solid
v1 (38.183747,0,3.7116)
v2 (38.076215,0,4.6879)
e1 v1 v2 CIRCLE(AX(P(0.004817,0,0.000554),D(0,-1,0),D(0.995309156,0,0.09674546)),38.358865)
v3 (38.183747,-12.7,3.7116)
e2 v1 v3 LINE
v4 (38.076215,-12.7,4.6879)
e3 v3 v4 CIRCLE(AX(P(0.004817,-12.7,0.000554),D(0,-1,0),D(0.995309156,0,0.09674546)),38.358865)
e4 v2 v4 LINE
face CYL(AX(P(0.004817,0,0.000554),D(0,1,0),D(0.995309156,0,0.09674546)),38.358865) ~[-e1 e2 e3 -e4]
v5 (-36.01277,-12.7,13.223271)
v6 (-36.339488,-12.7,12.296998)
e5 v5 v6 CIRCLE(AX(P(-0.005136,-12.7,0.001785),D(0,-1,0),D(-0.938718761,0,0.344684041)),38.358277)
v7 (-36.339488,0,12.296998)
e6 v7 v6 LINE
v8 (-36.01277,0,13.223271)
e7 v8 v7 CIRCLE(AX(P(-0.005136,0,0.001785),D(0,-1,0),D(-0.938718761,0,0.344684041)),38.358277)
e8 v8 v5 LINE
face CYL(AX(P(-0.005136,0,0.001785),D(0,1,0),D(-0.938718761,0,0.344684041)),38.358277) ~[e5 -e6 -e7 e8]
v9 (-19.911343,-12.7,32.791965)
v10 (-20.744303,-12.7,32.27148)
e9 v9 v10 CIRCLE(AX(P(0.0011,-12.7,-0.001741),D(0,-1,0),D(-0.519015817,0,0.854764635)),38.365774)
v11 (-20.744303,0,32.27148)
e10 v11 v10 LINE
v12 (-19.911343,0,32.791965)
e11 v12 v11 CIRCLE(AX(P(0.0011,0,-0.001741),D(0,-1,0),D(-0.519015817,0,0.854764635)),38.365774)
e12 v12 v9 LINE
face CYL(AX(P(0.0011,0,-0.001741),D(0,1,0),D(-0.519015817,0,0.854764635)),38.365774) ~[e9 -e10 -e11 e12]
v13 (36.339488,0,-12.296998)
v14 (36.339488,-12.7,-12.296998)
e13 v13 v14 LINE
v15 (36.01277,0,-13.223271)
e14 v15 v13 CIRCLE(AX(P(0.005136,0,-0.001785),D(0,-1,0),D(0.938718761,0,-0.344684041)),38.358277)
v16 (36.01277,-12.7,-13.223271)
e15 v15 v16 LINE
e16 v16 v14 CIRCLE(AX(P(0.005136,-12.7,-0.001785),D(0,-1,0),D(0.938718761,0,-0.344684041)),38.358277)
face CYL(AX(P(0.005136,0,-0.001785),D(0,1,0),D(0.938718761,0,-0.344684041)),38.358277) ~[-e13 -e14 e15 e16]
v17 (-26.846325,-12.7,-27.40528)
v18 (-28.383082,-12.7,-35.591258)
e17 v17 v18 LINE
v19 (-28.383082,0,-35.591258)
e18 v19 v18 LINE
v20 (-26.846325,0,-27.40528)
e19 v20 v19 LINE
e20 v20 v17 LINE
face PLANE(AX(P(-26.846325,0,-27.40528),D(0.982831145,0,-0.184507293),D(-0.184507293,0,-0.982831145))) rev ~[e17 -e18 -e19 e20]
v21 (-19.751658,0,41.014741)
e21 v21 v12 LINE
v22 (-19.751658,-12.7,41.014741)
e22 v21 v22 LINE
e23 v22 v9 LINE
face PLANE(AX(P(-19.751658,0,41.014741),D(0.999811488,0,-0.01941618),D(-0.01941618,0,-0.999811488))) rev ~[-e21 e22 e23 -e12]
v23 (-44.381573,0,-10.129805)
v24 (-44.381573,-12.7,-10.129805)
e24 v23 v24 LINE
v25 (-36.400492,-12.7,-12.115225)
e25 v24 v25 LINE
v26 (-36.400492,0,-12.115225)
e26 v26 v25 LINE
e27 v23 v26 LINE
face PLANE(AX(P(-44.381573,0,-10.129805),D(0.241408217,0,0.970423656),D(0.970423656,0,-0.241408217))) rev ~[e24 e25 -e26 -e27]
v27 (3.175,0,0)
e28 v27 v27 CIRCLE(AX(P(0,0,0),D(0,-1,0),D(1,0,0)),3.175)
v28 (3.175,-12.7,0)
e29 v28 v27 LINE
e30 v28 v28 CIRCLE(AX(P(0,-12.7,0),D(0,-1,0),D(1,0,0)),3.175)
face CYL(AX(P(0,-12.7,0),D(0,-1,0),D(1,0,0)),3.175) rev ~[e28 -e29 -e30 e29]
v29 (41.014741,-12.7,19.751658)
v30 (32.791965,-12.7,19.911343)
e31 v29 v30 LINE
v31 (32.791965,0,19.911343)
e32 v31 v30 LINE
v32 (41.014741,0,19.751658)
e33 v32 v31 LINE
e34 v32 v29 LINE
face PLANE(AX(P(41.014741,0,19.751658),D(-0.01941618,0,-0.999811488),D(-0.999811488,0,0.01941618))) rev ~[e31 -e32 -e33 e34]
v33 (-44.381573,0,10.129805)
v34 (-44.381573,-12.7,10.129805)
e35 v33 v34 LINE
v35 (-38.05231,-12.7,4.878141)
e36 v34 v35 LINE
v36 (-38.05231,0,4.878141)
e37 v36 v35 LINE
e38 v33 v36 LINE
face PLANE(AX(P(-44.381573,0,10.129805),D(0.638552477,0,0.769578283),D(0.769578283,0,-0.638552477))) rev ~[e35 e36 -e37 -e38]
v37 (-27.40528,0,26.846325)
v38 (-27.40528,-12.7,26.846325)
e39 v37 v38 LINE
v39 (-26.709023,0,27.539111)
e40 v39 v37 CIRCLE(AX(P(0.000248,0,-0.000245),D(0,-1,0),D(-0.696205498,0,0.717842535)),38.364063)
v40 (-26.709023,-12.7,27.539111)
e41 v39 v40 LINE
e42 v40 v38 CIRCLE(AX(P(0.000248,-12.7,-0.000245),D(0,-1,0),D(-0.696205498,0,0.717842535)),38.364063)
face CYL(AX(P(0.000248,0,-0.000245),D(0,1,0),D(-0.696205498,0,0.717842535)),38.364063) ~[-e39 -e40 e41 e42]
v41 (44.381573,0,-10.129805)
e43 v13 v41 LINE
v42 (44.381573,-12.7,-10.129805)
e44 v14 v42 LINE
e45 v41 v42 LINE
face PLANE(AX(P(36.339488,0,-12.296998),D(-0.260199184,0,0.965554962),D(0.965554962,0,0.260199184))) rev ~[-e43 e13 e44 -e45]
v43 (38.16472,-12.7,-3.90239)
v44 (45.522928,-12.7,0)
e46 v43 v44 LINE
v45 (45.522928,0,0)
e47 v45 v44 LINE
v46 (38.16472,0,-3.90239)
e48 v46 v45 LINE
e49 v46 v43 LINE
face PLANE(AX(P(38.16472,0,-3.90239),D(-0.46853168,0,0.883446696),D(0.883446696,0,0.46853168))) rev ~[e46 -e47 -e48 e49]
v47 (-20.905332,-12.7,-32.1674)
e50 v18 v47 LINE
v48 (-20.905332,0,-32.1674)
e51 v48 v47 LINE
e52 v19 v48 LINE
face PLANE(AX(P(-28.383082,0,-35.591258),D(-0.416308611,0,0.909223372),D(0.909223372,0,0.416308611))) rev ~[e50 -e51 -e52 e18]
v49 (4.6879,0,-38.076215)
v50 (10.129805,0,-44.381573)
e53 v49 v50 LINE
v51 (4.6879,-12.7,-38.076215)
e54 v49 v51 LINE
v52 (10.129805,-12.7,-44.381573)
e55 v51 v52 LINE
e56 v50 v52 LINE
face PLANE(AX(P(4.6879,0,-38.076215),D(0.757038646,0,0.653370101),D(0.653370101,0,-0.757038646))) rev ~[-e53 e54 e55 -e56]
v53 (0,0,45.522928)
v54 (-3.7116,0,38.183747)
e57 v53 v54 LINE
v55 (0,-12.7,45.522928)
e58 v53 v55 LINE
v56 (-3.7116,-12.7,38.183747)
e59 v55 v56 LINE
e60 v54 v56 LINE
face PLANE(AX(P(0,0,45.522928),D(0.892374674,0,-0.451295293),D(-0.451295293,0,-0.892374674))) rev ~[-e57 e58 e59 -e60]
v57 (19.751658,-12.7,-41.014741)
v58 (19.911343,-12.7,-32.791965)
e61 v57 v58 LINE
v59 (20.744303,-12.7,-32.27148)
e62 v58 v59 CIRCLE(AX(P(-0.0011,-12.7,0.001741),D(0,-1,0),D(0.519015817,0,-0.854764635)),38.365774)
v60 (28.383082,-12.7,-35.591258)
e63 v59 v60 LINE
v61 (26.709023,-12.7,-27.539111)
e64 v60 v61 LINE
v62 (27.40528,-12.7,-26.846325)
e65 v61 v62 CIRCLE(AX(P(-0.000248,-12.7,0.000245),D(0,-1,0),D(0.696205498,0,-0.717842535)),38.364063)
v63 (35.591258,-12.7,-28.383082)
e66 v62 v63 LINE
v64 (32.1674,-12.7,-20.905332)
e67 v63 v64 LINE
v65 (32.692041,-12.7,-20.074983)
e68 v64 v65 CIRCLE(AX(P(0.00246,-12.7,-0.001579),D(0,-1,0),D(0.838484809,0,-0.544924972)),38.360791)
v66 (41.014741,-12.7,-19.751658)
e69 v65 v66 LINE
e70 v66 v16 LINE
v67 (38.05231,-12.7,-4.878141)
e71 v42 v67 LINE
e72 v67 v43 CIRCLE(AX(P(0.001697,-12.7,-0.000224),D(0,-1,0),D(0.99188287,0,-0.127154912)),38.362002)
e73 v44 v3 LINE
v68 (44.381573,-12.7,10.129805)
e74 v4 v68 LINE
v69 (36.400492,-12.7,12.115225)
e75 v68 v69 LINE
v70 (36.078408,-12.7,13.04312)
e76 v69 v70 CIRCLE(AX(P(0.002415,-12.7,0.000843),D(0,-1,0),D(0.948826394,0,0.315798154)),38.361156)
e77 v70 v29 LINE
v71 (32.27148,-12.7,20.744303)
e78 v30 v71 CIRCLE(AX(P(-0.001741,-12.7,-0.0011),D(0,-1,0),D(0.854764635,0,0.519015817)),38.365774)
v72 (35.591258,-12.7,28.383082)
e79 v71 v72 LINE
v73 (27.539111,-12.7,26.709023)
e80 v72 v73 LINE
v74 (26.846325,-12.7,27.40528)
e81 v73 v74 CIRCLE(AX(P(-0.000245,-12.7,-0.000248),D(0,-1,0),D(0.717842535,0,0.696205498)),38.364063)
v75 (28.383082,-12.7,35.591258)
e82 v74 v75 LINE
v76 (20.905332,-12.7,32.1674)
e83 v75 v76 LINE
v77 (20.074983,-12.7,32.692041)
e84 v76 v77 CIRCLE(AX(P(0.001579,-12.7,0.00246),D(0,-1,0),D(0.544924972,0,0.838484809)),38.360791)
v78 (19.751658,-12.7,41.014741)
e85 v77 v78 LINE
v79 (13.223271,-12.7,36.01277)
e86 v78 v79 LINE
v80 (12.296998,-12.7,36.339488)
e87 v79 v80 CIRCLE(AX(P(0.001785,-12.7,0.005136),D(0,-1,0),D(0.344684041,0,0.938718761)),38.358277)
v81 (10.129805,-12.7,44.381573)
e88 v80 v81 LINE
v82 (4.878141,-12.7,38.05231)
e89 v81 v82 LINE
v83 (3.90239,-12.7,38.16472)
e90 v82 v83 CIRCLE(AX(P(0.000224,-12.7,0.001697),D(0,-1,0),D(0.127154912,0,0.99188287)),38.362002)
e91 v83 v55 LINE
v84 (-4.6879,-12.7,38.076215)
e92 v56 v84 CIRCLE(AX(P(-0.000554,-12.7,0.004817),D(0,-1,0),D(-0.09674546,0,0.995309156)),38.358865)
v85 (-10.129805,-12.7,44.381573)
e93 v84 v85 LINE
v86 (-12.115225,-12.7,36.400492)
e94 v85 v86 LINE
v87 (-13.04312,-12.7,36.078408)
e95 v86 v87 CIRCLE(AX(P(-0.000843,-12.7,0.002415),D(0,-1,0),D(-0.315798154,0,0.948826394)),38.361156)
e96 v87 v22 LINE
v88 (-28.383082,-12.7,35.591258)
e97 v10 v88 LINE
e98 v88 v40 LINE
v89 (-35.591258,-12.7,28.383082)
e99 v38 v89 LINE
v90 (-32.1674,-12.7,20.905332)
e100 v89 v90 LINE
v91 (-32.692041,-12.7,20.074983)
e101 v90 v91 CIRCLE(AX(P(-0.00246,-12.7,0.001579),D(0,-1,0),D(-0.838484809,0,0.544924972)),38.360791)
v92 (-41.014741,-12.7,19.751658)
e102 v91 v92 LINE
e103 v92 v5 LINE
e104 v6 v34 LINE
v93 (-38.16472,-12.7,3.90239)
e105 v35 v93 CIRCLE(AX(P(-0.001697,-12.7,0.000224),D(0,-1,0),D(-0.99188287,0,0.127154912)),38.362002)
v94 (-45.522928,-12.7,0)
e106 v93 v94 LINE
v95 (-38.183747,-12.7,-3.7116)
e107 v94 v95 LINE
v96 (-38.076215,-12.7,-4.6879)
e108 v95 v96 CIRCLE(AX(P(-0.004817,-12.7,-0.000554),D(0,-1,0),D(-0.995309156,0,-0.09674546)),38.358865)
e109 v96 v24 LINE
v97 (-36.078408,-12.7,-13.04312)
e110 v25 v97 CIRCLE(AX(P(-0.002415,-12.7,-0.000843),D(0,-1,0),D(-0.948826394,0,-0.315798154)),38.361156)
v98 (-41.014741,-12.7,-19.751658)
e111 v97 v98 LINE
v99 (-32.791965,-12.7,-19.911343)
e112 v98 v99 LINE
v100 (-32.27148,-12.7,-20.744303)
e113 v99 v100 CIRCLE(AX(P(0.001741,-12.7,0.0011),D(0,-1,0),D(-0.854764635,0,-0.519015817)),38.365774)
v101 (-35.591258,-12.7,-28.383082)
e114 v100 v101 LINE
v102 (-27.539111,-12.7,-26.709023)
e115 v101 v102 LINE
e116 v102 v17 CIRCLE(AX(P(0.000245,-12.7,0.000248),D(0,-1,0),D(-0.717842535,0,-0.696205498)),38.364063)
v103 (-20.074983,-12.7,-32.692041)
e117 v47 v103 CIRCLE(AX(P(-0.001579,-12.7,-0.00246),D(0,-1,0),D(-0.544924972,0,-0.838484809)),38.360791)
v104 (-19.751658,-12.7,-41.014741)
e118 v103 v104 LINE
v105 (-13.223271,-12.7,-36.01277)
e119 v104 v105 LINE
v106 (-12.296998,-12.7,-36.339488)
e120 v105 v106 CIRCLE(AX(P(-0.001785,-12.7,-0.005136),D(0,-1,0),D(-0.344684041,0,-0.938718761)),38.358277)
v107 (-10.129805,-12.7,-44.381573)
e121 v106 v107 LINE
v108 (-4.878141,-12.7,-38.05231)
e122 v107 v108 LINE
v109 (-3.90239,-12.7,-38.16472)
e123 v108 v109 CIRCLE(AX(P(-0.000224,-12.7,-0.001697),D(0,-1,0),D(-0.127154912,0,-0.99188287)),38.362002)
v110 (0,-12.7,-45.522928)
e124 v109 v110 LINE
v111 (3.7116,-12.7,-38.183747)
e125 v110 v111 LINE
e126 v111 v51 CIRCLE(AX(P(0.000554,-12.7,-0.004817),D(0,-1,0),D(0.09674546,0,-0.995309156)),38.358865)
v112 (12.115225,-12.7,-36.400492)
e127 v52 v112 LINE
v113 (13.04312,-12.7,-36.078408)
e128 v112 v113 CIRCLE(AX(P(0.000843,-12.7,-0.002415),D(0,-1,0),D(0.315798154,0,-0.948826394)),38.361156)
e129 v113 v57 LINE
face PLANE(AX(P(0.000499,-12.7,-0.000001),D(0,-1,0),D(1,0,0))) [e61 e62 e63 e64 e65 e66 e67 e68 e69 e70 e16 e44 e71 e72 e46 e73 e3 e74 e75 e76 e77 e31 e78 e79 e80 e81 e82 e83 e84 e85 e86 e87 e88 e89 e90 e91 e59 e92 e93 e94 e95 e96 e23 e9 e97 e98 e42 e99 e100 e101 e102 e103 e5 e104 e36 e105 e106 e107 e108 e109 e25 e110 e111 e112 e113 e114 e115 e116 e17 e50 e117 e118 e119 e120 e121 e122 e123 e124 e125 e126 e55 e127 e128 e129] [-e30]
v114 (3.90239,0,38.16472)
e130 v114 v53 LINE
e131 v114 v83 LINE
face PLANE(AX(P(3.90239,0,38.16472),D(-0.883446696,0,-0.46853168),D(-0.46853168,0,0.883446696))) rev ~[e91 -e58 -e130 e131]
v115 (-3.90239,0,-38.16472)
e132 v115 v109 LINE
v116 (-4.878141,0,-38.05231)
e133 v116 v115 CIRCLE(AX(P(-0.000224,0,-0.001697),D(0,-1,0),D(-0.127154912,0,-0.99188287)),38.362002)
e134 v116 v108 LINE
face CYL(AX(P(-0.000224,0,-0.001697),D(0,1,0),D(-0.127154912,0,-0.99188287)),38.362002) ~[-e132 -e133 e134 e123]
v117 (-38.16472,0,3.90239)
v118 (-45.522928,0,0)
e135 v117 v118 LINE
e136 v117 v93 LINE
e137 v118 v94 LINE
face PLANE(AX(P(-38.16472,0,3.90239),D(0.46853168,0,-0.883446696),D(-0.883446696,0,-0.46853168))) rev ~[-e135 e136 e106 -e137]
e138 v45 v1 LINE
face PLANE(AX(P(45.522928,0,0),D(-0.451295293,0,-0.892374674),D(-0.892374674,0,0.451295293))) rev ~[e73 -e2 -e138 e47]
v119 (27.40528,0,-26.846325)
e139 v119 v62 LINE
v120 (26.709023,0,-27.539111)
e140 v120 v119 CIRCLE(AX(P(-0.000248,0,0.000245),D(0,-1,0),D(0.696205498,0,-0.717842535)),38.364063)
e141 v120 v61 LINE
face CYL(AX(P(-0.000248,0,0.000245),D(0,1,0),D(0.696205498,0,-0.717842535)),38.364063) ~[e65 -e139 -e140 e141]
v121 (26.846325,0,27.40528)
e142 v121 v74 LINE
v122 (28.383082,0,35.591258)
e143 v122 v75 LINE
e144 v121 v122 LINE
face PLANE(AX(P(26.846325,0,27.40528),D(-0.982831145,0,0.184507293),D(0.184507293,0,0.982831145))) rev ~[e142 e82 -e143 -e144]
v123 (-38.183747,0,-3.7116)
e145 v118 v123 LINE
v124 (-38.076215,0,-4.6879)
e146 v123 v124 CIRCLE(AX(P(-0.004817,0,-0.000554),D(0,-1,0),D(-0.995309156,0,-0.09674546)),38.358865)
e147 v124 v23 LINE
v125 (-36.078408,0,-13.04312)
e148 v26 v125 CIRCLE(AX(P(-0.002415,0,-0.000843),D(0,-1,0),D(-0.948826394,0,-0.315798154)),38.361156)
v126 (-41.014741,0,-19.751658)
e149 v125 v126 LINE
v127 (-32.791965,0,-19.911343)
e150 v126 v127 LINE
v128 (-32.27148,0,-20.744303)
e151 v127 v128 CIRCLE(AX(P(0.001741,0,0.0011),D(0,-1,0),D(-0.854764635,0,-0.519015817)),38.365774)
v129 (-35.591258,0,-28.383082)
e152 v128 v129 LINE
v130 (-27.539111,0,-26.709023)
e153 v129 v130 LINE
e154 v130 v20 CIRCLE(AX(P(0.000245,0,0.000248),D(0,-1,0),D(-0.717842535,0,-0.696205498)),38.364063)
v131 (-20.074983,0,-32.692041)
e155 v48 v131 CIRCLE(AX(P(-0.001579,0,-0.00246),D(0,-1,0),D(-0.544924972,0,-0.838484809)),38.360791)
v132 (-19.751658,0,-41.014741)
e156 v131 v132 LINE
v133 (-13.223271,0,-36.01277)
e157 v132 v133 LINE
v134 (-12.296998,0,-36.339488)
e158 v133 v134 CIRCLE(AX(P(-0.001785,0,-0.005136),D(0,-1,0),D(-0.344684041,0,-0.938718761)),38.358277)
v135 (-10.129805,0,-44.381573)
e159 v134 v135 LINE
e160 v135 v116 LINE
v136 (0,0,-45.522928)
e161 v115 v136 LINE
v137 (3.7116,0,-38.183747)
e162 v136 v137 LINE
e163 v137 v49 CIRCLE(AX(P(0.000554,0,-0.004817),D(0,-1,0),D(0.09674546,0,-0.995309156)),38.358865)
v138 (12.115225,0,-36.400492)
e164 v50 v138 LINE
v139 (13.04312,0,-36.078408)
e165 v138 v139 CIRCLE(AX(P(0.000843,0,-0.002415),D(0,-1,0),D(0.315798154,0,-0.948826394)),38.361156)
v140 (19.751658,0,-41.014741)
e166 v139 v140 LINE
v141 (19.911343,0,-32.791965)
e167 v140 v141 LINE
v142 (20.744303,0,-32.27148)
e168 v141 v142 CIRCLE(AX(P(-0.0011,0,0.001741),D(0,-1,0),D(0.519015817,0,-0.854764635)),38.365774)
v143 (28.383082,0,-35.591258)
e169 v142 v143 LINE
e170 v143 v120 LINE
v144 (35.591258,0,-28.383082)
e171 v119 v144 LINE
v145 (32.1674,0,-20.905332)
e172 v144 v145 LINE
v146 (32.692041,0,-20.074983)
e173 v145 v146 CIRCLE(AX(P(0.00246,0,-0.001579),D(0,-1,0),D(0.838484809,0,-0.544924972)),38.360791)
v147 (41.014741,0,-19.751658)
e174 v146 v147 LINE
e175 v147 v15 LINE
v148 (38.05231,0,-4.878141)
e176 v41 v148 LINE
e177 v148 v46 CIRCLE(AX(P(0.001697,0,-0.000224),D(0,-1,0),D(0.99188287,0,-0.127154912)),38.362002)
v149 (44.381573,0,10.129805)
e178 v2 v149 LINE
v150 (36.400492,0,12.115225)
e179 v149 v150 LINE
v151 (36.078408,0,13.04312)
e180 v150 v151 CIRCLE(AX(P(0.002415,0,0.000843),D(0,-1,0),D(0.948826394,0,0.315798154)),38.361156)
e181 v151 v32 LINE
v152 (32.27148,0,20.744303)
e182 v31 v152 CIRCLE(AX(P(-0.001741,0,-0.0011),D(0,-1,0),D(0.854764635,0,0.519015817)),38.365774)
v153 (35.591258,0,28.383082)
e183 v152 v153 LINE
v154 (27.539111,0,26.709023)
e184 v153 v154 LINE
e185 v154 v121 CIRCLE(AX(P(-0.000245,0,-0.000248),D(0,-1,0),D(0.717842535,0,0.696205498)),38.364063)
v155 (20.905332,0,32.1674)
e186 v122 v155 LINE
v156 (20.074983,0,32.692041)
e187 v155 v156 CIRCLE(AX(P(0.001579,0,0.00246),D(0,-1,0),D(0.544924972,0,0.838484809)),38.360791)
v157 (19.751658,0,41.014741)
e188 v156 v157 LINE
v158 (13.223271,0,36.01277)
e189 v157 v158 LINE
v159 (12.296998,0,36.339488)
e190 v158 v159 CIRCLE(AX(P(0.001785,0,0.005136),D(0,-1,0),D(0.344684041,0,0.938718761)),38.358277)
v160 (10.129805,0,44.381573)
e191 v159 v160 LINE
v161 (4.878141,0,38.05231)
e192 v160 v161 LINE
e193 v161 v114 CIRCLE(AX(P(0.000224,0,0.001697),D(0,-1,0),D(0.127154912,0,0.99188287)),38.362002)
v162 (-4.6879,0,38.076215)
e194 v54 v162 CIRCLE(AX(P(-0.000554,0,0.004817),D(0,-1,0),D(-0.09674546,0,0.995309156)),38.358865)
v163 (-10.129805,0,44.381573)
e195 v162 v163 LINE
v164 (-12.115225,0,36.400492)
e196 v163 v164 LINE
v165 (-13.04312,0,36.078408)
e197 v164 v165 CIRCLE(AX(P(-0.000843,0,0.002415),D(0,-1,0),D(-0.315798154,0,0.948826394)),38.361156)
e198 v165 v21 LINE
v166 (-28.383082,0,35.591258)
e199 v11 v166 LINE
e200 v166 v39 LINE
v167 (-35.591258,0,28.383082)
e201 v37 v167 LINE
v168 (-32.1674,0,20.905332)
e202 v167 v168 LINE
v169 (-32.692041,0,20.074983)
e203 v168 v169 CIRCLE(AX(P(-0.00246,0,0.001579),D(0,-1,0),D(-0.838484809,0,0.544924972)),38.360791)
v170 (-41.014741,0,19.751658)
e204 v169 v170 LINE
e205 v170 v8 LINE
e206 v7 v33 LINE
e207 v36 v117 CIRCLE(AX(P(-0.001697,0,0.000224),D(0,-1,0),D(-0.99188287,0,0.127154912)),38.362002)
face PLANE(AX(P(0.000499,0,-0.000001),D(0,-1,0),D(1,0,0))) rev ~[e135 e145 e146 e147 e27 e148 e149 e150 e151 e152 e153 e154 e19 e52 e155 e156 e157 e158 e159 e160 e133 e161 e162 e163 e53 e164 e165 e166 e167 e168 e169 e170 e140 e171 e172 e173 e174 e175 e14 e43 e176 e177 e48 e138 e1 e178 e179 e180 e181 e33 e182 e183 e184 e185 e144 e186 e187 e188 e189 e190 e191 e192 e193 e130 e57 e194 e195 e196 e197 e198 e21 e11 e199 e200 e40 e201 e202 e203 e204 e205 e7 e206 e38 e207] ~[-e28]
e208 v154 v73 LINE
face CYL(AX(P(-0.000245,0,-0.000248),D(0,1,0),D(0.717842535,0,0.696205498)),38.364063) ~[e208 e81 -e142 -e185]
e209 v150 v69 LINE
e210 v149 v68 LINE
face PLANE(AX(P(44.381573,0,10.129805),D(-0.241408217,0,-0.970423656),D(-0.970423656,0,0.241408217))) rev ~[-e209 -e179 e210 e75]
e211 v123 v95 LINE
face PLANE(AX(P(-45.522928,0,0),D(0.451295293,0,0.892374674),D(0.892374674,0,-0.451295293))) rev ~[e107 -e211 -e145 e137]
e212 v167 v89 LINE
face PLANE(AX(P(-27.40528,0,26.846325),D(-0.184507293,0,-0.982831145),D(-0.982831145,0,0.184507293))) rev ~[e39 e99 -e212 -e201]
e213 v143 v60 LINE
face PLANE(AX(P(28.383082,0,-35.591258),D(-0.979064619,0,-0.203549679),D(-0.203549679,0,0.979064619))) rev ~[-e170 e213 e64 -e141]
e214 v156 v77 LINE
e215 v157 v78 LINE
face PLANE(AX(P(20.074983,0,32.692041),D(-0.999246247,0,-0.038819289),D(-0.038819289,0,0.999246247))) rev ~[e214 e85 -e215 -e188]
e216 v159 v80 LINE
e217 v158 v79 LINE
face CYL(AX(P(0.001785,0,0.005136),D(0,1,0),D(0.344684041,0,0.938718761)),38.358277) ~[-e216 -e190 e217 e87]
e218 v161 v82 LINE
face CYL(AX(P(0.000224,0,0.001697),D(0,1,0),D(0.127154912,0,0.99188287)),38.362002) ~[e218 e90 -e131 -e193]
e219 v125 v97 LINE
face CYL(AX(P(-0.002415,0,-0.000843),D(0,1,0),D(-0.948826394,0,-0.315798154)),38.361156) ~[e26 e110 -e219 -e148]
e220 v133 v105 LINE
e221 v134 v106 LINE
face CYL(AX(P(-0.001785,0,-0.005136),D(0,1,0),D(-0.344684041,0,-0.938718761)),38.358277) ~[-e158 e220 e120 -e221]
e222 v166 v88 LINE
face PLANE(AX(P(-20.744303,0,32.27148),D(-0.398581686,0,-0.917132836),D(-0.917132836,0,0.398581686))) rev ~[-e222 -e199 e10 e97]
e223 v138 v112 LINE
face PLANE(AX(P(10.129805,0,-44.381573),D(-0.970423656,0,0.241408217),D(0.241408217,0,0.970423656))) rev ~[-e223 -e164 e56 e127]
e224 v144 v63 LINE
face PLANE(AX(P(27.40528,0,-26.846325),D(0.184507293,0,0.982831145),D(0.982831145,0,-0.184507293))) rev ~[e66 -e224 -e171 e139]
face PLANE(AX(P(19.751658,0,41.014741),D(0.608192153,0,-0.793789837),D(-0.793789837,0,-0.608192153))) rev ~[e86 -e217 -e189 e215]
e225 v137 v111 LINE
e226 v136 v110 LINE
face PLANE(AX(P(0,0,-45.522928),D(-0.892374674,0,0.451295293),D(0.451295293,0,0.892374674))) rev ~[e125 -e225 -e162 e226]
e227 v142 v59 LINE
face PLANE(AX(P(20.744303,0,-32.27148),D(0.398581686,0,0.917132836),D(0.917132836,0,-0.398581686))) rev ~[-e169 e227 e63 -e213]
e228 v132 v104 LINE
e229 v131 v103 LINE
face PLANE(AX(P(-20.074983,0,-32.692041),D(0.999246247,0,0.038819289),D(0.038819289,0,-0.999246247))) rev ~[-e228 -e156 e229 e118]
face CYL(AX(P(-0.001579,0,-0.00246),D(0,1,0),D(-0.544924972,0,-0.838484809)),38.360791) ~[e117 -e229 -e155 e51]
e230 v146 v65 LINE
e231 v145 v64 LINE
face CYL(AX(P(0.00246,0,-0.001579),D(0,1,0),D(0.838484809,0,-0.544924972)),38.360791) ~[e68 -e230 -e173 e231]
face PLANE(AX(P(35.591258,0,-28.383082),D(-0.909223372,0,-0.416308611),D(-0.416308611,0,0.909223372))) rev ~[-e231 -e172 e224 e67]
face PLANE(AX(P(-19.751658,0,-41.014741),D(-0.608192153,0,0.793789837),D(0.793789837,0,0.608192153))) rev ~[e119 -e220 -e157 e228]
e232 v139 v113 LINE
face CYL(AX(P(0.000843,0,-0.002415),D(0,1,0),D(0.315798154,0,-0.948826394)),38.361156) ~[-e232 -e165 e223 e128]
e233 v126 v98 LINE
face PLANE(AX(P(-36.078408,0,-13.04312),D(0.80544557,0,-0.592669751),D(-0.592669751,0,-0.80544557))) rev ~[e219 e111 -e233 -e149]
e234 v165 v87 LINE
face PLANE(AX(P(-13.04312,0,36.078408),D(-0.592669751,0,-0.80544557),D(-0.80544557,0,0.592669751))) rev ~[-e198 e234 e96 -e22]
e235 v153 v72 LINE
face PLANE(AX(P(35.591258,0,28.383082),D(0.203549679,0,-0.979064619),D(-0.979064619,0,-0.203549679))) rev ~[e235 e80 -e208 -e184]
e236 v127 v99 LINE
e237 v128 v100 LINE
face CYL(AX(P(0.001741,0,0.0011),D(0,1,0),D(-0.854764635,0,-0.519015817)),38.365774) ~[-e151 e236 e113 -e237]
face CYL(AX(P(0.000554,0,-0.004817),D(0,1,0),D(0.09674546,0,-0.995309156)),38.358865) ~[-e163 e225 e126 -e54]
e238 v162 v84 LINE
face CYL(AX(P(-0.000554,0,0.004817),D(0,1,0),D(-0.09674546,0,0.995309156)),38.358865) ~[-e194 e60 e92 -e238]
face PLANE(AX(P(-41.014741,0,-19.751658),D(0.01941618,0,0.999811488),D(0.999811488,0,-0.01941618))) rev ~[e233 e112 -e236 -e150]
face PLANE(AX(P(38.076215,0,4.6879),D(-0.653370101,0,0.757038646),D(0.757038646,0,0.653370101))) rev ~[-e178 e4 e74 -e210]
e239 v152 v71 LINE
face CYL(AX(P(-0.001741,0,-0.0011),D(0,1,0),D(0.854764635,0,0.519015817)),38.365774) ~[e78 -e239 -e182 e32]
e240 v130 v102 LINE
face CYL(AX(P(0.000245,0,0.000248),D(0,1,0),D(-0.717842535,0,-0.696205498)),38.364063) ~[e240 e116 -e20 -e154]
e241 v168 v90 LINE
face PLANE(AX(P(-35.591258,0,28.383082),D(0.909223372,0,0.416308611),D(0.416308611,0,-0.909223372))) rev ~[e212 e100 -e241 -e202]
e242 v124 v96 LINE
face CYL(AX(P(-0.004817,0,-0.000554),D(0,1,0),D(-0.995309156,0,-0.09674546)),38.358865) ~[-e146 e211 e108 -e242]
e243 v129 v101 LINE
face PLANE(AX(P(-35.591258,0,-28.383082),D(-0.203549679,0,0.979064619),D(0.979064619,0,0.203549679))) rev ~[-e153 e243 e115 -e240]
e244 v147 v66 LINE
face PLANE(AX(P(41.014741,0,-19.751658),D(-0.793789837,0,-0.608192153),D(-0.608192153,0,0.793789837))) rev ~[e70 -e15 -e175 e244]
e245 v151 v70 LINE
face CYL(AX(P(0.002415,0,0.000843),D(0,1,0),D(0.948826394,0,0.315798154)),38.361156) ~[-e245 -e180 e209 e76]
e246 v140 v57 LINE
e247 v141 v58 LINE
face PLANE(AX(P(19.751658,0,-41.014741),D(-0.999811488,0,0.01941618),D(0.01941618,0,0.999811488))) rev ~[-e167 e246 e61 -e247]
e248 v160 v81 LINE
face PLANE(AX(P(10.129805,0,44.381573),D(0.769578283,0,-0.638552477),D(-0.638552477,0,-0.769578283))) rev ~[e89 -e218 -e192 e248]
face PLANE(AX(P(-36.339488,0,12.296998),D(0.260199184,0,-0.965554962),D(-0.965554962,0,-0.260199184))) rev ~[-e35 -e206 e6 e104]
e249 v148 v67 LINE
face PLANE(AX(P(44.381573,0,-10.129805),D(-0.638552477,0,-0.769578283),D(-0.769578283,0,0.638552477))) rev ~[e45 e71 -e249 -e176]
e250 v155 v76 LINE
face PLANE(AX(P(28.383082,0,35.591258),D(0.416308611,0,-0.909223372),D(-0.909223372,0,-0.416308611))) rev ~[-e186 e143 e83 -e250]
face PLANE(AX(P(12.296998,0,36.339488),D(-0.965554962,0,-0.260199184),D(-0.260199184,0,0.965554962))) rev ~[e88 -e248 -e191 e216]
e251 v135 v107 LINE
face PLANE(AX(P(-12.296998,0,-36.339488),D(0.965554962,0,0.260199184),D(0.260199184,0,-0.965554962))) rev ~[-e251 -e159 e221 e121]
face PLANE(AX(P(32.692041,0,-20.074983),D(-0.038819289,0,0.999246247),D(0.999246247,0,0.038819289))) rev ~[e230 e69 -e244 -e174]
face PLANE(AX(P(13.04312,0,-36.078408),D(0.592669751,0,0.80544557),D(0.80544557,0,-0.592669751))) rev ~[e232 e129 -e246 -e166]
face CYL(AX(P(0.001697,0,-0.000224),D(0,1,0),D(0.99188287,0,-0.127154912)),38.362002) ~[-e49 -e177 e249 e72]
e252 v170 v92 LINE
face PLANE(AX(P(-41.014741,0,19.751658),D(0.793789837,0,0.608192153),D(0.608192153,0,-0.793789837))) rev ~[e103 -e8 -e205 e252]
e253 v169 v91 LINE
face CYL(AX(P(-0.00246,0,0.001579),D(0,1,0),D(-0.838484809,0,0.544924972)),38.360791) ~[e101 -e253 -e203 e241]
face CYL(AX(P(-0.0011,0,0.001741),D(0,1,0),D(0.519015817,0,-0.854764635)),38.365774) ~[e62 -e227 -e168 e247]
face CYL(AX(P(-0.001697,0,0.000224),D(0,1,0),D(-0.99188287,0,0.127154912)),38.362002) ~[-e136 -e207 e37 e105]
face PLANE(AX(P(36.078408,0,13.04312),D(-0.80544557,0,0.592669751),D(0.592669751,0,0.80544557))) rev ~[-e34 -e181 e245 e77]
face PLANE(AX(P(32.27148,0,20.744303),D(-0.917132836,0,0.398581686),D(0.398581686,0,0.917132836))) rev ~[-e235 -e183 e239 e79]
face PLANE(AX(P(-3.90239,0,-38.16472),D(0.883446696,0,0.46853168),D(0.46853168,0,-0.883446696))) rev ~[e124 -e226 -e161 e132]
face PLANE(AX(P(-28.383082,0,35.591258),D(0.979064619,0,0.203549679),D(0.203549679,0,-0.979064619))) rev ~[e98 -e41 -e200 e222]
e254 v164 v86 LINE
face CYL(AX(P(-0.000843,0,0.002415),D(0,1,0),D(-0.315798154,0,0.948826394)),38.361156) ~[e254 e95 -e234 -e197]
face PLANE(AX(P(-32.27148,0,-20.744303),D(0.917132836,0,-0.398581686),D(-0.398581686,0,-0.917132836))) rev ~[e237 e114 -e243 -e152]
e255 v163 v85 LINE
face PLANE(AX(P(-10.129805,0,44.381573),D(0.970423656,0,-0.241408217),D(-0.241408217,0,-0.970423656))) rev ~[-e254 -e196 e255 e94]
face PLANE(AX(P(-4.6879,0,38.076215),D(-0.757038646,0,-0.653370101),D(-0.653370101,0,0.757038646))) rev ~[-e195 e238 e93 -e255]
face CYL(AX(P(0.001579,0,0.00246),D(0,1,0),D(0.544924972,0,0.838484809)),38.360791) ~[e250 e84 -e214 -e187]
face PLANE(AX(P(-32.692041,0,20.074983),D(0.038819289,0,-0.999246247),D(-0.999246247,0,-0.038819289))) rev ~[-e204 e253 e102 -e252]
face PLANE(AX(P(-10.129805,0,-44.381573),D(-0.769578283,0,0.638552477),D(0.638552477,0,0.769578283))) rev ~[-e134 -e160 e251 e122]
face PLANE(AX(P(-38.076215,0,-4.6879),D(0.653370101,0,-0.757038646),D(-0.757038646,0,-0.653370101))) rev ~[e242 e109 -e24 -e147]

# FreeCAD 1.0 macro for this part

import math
import FreeCAD as App
import Part
import Sketcher

V = App.Vector
Q = App.Units.Quantity

doc = App.newDocument("Part")
params = doc.addObject("Spreadsheet::Sheet", "Params")
for row, (alias, value) in enumerate([
    ("pad1_length", "0.5 in"),
    ("sketch2_diameter", "0.25 in"),
    ("pocket1_length", "1 in"),
], start=1):
    params.set(f"A{row}", alias)
    params.set(f"B{row}", "=" + value)
    params.setAlias(f"B{row}", alias)

body = doc.addObject("PartDesign::Body", "Body")

sketch1 = body.newObject("Sketcher::SketchObject", "Sketch")
sketch1.AttachmentSupport = (doc.getObject("XZ_Plane"), [""])
sketch1.MapMode = "FlatFace"
sketch1.addGeometry([
    Part.ArcOfCircle(Part.Circle(V(0.004817, 0.000554, 0), V(0, 0, 1), 38.358865), math.radians(5.55179), math.radians(7.018926)),
    Part.LineSegment(V(38.076215, 4.6879, 0), V(44.381573, 10.129805, 0)),
    Part.LineSegment(V(44.381573, 10.129805, 0), V(36.400492, 12.115225, 0)),
    Part.ArcOfCircle(Part.Circle(V(0.002415, 0.000843, 0), V(0, 0, 1), 38.361156), math.radians(18.409004), math.radians(19.876055)),
    Part.LineSegment(V(36.078408, 13.04312, 0), V(41.014741, 19.751658, 0)),
    Part.LineSegment(V(41.014741, 19.751658, 0), V(32.791965, 19.911343, 0)),
    Part.ArcOfCircle(Part.Circle(V(-0.001741, -0.0011, 0), V(0, 0, 1), 38.365774), math.radians(31.266258), math.radians(32.733131)),
    Part.LineSegment(V(32.27148, 20.744303, 0), V(35.591258, 28.383082, 0)),
    Part.LineSegment(V(35.591258, 28.383082, 0), V(27.539111, 26.709023, 0)),
    Part.ArcOfCircle(Part.Circle(V(-0.000245, -0.000248, 0), V(0, 0, 1), 38.364063), math.radians(44.123358), math.radians(45.590296)),
    Part.LineSegment(V(26.846325, 27.40528, 0), V(28.383082, 35.591258, 0)),
    Part.LineSegment(V(28.383082, 35.591258, 0), V(20.905332, 32.1674, 0)),
    Part.ArcOfCircle(Part.Circle(V(0.001579, 0.00246, 0), V(0, 0, 1), 38.360791), math.radians(56.980463), math.radians(58.447528)),
    Part.LineSegment(V(20.074983, 32.692041, 0), V(19.751658, 41.014741, 0)),
    Part.LineSegment(V(19.751658, 41.014741, 0), V(13.223271, 36.01277, 0)),
    Part.ArcOfCircle(Part.Circle(V(0.001785, 0.005136, 0), V(0, 0, 1), 38.358277), math.radians(69.83749), math.radians(71.30465)),
    Part.LineSegment(V(12.296998, 36.339488, 0), V(10.129805, 44.381573, 0)),
    Part.LineSegment(V(10.129805, 44.381573, 0), V(4.878141, 38.05231, 0)),
    Part.ArcOfCircle(Part.Circle(V(0.000224, 0.001697, 0), V(0, 0, 1), 38.362002), math.radians(82.694784), math.radians(84.161801)),
    Part.LineSegment(V(3.90239, 38.16472, 0), V(0, 45.522928, 0)),
    Part.LineSegment(V(0, 45.522928, 0), V(-3.7116, 38.183747, 0)),
    Part.ArcOfCircle(Part.Circle(V(-0.000554, 0.004817, 0), V(0, 0, 1), 38.358865), math.radians(95.55179), math.radians(97.018926)),
    Part.LineSegment(V(-4.6879, 38.076215, 0), V(-10.129805, 44.381573, 0)),
    Part.LineSegment(V(-10.129805, 44.381573, 0), V(-12.115225, 36.400492, 0)),
    Part.ArcOfCircle(Part.Circle(V(-0.000843, 0.002415, 0), V(0, 0, 1), 38.361156), math.radians(108.409004), math.radians(109.876055)),
    Part.LineSegment(V(-13.04312, 36.078408, 0), V(-19.751658, 41.014741, 0)),
    Part.LineSegment(V(-19.751658, 41.014741, 0), V(-19.911343, 32.791965, 0)),
    Part.ArcOfCircle(Part.Circle(V(0.0011, -0.001741, 0), V(0, 0, 1), 38.365774), math.radians(121.266258), math.radians(122.733131)),
    Part.LineSegment(V(-20.744303, 32.27148, 0), V(-28.383082, 35.591258, 0)),
    Part.LineSegment(V(-28.383082, 35.591258, 0), V(-26.709023, 27.539111, 0)),
    Part.ArcOfCircle(Part.Circle(V(0.000248, -0.000245, 0), V(0, 0, 1), 38.364063), math.radians(134.123358), math.radians(135.590296)),
    Part.LineSegment(V(-27.40528, 26.846325, 0), V(-35.591258, 28.383082, 0)),
    Part.LineSegment(V(-35.591258, 28.383082, 0), V(-32.1674, 20.905332, 0)),
    Part.ArcOfCircle(Part.Circle(V(-0.00246, 0.001579, 0), V(0, 0, 1), 38.360791), math.radians(146.980463), math.radians(148.447528)),
    Part.LineSegment(V(-32.692041, 20.074983, 0), V(-41.014741, 19.751658, 0)),
    Part.LineSegment(V(-41.014741, 19.751658, 0), V(-36.01277, 13.223271, 0)),
    Part.ArcOfCircle(Part.Circle(V(-0.005136, 0.001785, 0), V(0, 0, 1), 38.358277), math.radians(159.83749), math.radians(161.30465)),
    Part.LineSegment(V(-36.339488, 12.296998, 0), V(-44.381573, 10.129805, 0)),
    Part.LineSegment(V(-44.381573, 10.129805, 0), V(-38.05231, 4.878141, 0)),
    Part.ArcOfCircle(Part.Circle(V(-0.001697, 0.000224, 0), V(0, 0, 1), 38.362002), math.radians(172.694784), math.radians(174.161801)),
    Part.LineSegment(V(-38.16472, 3.90239, 0), V(-45.522928, 0, 0)),
    Part.LineSegment(V(-45.522928, 0, 0), V(-38.183747, -3.7116, 0)),
    Part.ArcOfCircle(Part.Circle(V(-0.004817, -0.000554, 0), V(0, 0, 1), 38.358865), math.radians(-174.44821), math.radians(-172.981074)),
    Part.LineSegment(V(-38.076215, -4.6879, 0), V(-44.381573, -10.129805, 0)),
    Part.LineSegment(V(-44.381573, -10.129805, 0), V(-36.400492, -12.115225, 0)),
    Part.ArcOfCircle(Part.Circle(V(-0.002415, -0.000843, 0), V(0, 0, 1), 38.361156), math.radians(-161.590996), math.radians(-160.123945)),
    Part.LineSegment(V(-36.078408, -13.04312, 0), V(-41.014741, -19.751658, 0)),
    Part.LineSegment(V(-41.014741, -19.751658, 0), V(-32.791965, -19.911343, 0)),
    Part.ArcOfCircle(Part.Circle(V(0.001741, 0.0011, 0), V(0, 0, 1), 38.365774), math.radians(-148.733742), math.radians(-147.266869)),
    Part.LineSegment(V(-32.27148, -20.744303, 0), V(-35.591258, -28.383082, 0)),
    Part.LineSegment(V(-35.591258, -28.383082, 0), V(-27.539111, -26.709023, 0)),
    Part.ArcOfCircle(Part.Circle(V(0.000245, 0.000248, 0), V(0, 0, 1), 38.364063), math.radians(-135.876642), math.radians(-134.409704)),
    Part.LineSegment(V(-26.846325, -27.40528, 0), V(-28.383082, -35.591258, 0)),
    Part.LineSegment(V(-28.383082, -35.591258, 0), V(-20.905332, -32.1674, 0)),
    Part.ArcOfCircle(Part.Circle(V(-0.001579, -0.00246, 0), V(0, 0, 1), 38.360791), math.radians(-123.019537), math.radians(-121.552472)),
    Part.LineSegment(V(-20.074983, -32.692041, 0), V(-19.751658, -41.014741, 0)),
    Part.LineSegment(V(-19.751658, -41.014741, 0), V(-13.223271, -36.01277, 0)),
    Part.ArcOfCircle(Part.Circle(V(-0.001785, -0.005136, 0), V(0, 0, 1), 38.358277), math.radians(-110.16251), math.radians(-108.69535)),
    Part.LineSegment(V(-12.296998, -36.339488, 0), V(-10.129805, -44.381573, 0)),
    Part.LineSegment(V(-10.129805, -44.381573, 0), V(-4.878141, -38.05231, 0)),
    Part.ArcOfCircle(Part.Circle(V(-0.000224, -0.001697, 0), V(0, 0, 1), 38.362002), math.radians(-97.305216), math.radians(-95.838199)),
    Part.LineSegment(V(-3.90239, -38.16472, 0), V(0, -45.522928, 0)),
    Part.LineSegment(V(0, -45.522928, 0), V(3.7116, -38.183747, 0)),
    Part.ArcOfCircle(Part.Circle(V(0.000554, -0.004817, 0), V(0, 0, 1), 38.358865), math.radians(-84.44821), math.radians(-82.981074)),
    Part.LineSegment(V(4.6879, -38.076215, 0), V(10.129805, -44.381573, 0)),
    Part.LineSegment(V(10.129805, -44.381573, 0), V(12.115225, -36.400492, 0)),
    Part.ArcOfCircle(Part.Circle(V(0.000843, -0.002415, 0), V(0, 0, 1), 38.361156), math.radians(-71.590996), math.radians(-70.123945)),
    Part.LineSegment(V(13.04312, -36.078408, 0), V(19.751658, -41.014741, 0)),
    Part.LineSegment(V(19.751658, -41.014741, 0), V(19.911343, -32.791965, 0)),
    Part.ArcOfCircle(Part.Circle(V(-0.0011, 0.001741, 0), V(0, 0, 1), 38.365774), math.radians(-58.733742), math.radians(-57.266869)),
    Part.LineSegment(V(20.744303, -32.27148, 0), V(28.383082, -35.591258, 0)),
    Part.LineSegment(V(28.383082, -35.591258, 0), V(26.709023, -27.539111, 0)),
    Part.ArcOfCircle(Part.Circle(V(-0.000248, 0.000245, 0), V(0, 0, 1), 38.364063), math.radians(-45.876642), math.radians(-44.409704)),
    Part.LineSegment(V(27.40528, -26.846325, 0), V(35.591258, -28.383082, 0)),
    Part.LineSegment(V(35.591258, -28.383082, 0), V(32.1674, -20.905332, 0)),
    Part.ArcOfCircle(Part.Circle(V(0.00246, -0.001579, 0), V(0, 0, 1), 38.360791), math.radians(-33.019537), math.radians(-31.552472)),
    Part.LineSegment(V(32.692041, -20.074983, 0), V(41.014741, -19.751658, 0)),
    Part.LineSegment(V(41.014741, -19.751658, 0), V(36.01277, -13.223271, 0)),
    Part.ArcOfCircle(Part.Circle(V(0.005136, -0.001785, 0), V(0, 0, 1), 38.358277), math.radians(-20.16251), math.radians(-18.69535)),
    Part.LineSegment(V(36.339488, -12.296998, 0), V(44.381573, -10.129805, 0)),
    Part.LineSegment(V(44.381573, -10.129805, 0), V(38.05231, -4.878141, 0)),
    Part.ArcOfCircle(Part.Circle(V(0.001697, -0.000224, 0), V(0, 0, 1), 38.362002), math.radians(-7.305216), math.radians(-5.838199)),
    Part.LineSegment(V(38.16472, -3.90239, 0), V(45.522928, 0, 0)),
    Part.LineSegment(V(45.522928, 0, 0), V(38.183747, 3.7116, 0)),
], False)
sketch1.addConstraint([
    Sketcher.Constraint("Coincident", 0, 2, 1, 1),
    Sketcher.Constraint("Coincident", 1, 2, 2, 1),
    Sketcher.Constraint("Coincident", 2, 2, 3, 1),
    Sketcher.Constraint("Coincident", 3, 2, 4, 1),
    Sketcher.Constraint("Coincident", 4, 2, 5, 1),
    Sketcher.Constraint("Coincident", 5, 2, 6, 1),
    Sketcher.Constraint("Coincident", 6, 2, 7, 1),
    Sketcher.Constraint("Coincident", 7, 2, 8, 1),
    Sketcher.Constraint("Coincident", 8, 2, 9, 1),
    Sketcher.Constraint("Coincident", 9, 2, 10, 1),
    Sketcher.Constraint("Coincident", 10, 2, 11, 1),
    Sketcher.Constraint("Coincident", 11, 2, 12, 1),
    Sketcher.Constraint("Coincident", 12, 2, 13, 1),
    Sketcher.Constraint("Coincident", 13, 2, 14, 1),
    Sketcher.Constraint("Coincident", 14, 2, 15, 1),
    Sketcher.Constraint("Coincident", 15, 2, 16, 1),
    Sketcher.Constraint("Coincident", 16, 2, 17, 1),
    Sketcher.Constraint("Coincident", 17, 2, 18, 1),
    Sketcher.Constraint("Coincident", 18, 2, 19, 1),
    Sketcher.Constraint("Coincident", 19, 2, 20, 1),
    Sketcher.Constraint("Coincident", 20, 2, 21, 1),
    Sketcher.Constraint("Coincident", 21, 2, 22, 1),
    Sketcher.Constraint("Coincident", 22, 2, 23, 1),
    Sketcher.Constraint("Coincident", 23, 2, 24, 1),
    Sketcher.Constraint("Coincident", 24, 2, 25, 1),
    Sketcher.Constraint("Coincident", 25, 2, 26, 1),
    Sketcher.Constraint("Coincident", 26, 2, 27, 1),
    Sketcher.Constraint("Coincident", 27, 2, 28, 1),
    Sketcher.Constraint("Coincident", 28, 2, 29, 1),
    Sketcher.Constraint("Coincident", 29, 2, 30, 1),
    Sketcher.Constraint("Coincident", 30, 2, 31, 1),
    Sketcher.Constraint("Coincident", 31, 2, 32, 1),
    Sketcher.Constraint("Coincident", 32, 2, 33, 1),
    Sketcher.Constraint("Coincident", 33, 2, 34, 1),
    Sketcher.Constraint("Coincident", 34, 2, 35, 1),
    Sketcher.Constraint("Coincident", 35, 2, 36, 1),
    Sketcher.Constraint("Coincident", 36, 2, 37, 1),
    Sketcher.Constraint("Coincident", 37, 2, 38, 1),
    Sketcher.Constraint("Coincident", 38, 2, 39, 1),
    Sketcher.Constraint("Coincident", 39, 2, 40, 1),
    Sketcher.Constraint("Coincident", 40, 2, 41, 1),
    Sketcher.Constraint("Coincident", 41, 2, 42, 1),
    Sketcher.Constraint("Coincident", 42, 2, 43, 1),
    Sketcher.Constraint("Coincident", 43, 2, 44, 1),
    Sketcher.Constraint("Coincident", 44, 2, 45, 1),
    Sketcher.Constraint("Coincident", 45, 2, 46, 1),
    Sketcher.Constraint("Coincident", 46, 2, 47, 1),
    Sketcher.Constraint("Coincident", 47, 2, 48, 1),
    Sketcher.Constraint("Coincident", 48, 2, 49, 1),
    Sketcher.Constraint("Coincident", 49, 2, 50, 1),
    Sketcher.Constraint("Coincident", 50, 2, 51, 1),
    Sketcher.Constraint("Coincident", 51, 2, 52, 1),
    Sketcher.Constraint("Coincident", 52, 2, 53, 1),
    Sketcher.Constraint("Coincident", 53, 2, 54, 1),
    Sketcher.Constraint("Coincident", 54, 2, 55, 1),
    Sketcher.Constraint("Coincident", 55, 2, 56, 1),
    Sketcher.Constraint("Coincident", 56, 2, 57, 1),
    Sketcher.Constraint("Coincident", 57, 2, 58, 1),
    Sketcher.Constraint("Coincident", 58, 2, 59, 1),
    Sketcher.Constraint("Coincident", 59, 2, 60, 1),
    Sketcher.Constraint("Coincident", 60, 2, 61, 1),
    Sketcher.Constraint("Coincident", 61, 2, 62, 1),
    Sketcher.Constraint("Coincident", 62, 2, 63, 1),
    Sketcher.Constraint("Coincident", 63, 2, 64, 1),
    Sketcher.Constraint("Coincident", 64, 2, 65, 1),
    Sketcher.Constraint("Coincident", 65, 2, 66, 1),
    Sketcher.Constraint("Coincident", 66, 2, 67, 1),
    Sketcher.Constraint("Coincident", 67, 2, 68, 1),
    Sketcher.Constraint("Coincident", 68, 2, 69, 1),
    Sketcher.Constraint("Coincident", 69, 2, 70, 1),
    Sketcher.Constraint("Coincident", 70, 2, 71, 1),
    Sketcher.Constraint("Coincident", 71, 2, 72, 1),
    Sketcher.Constraint("Coincident", 72, 2, 73, 1),
    Sketcher.Constraint("Coincident", 73, 2, 74, 1),
    Sketcher.Constraint("Coincident", 74, 2, 75, 1),
    Sketcher.Constraint("Coincident", 75, 2, 76, 1),
    Sketcher.Constraint("Coincident", 76, 2, 77, 1),
    Sketcher.Constraint("Coincident", 77, 2, 78, 1),
    Sketcher.Constraint("Coincident", 78, 2, 79, 1),
    Sketcher.Constraint("Coincident", 79, 2, 80, 1),
    Sketcher.Constraint("Coincident", 80, 2, 81, 1),
    Sketcher.Constraint("Coincident", 81, 2, 82, 1),
    Sketcher.Constraint("Coincident", 82, 2, 83, 1),
    Sketcher.Constraint("Coincident", 83, 2, 0, 1),
    Sketcher.Constraint("PointOnObject", 19, 2, -2),
    Sketcher.Constraint("PointOnObject", 40, 2, -1),
    Sketcher.Constraint("PointOnObject", 61, 2, -2),
    Sketcher.Constraint("PointOnObject", 82, 2, -1),
    Sketcher.Constraint("Radius", 12, 38.360791),
    Sketcher.Constraint("Radius", 33, 38.360791),
    Sketcher.Constraint("Radius", 54, 38.360791),
    Sketcher.Constraint("Radius", 75, 38.360791),
    Sketcher.Constraint("Radius", 0, 38.358865),
    Sketcher.Constraint("Radius", 3, 38.361156),
    Sketcher.Constraint("Radius", 6, 38.365774),
    Sketcher.Constraint("Radius", 9, 38.364063),
    Sketcher.Constraint("Radius", 15, 38.358277),
    Sketcher.Constraint("Radius", 18, 38.362002),
    Sketcher.Constraint("Radius", 21, 38.358865),
    Sketcher.Constraint("Radius", 24, 38.361156),
    Sketcher.Constraint("Radius", 27, 38.365774),
    Sketcher.Constraint("Radius", 30, 38.364063),
    Sketcher.Constraint("Radius", 36, 38.358277),
    Sketcher.Constraint("Radius", 39, 38.362002),
    Sketcher.Constraint("Radius", 42, 38.358865),
    Sketcher.Constraint("Radius", 45, 38.361156),
    Sketcher.Constraint("Radius", 48, 38.365774),
    Sketcher.Constraint("Radius", 51, 38.364063),
    Sketcher.Constraint("Radius", 57, 38.358277),
    Sketcher.Constraint("Radius", 60, 38.362002),
    Sketcher.Constraint("Radius", 63, 38.358865),
    Sketcher.Constraint("Radius", 66, 38.361156),
    Sketcher.Constraint("Radius", 69, 38.365774),
    Sketcher.Constraint("Radius", 72, 38.364063),
    Sketcher.Constraint("Radius", 78, 38.358277),
    Sketcher.Constraint("Radius", 81, 38.362002),
    Sketcher.Constraint("DistanceY", 6, 3, -1, 1, 0.0011),
    Sketcher.Constraint("DistanceX", -1, 1, 27, 3, 0.0011),
    Sketcher.Constraint("DistanceY", -1, 1, 48, 3, 0.0011),
    Sketcher.Constraint("DistanceX", 69, 3, -1, 1, 0.0011),
    Sketcher.Constraint("DistanceY", -1, 1, 0, 2, 4.6879),
    Sketcher.Constraint("DistanceY", -1, 1, 11, 2, 32.1674),
    Sketcher.Constraint("DistanceX", 20, 2, -1, 1, 3.7116),
    Sketcher.Constraint("DistanceX", 21, 2, -1, 1, 4.6879),
    Sketcher.Constraint("DistanceX", 32, 2, -1, 1, 32.1674),
    Sketcher.Constraint("DistanceY", 41, 2, -1, 1, 3.7116),
    Sketcher.Constraint("DistanceY", 42, 2, -1, 1, 4.6879),
    Sketcher.Constraint("DistanceY", 53, 2, -1, 1, 32.1674),
    Sketcher.Constraint("DistanceX", -1, 1, 62, 2, 3.7116),
    Sketcher.Constraint("DistanceX", -1, 1, 63, 2, 4.6879),
    Sketcher.Constraint("DistanceX", -1, 1, 74, 2, 32.1674),
    Sketcher.Constraint("DistanceY", -1, 1, 83, 2, 3.7116),
    Sketcher.Constraint("DistanceX", 6, 3, -1, 1, 0.001741),
    Sketcher.Constraint("DistanceY", 9, 3, -1, 1, 0.000248),
    Sketcher.Constraint("DistanceX", -1, 1, 12, 3, 0.001579),
    Sketcher.Constraint("DistanceY", -1, 1, 12, 3, 0.00246),
    Sketcher.Constraint("DistanceY", 27, 3, -1, 1, 0.001741),
    Sketcher.Constraint("DistanceX", -1, 1, 30, 3, 0.000248),
    Sketcher.Constraint("DistanceX", 33, 3, -1, 1, 0.00246),
    Sketcher.Constraint("DistanceY", -1, 1, 33, 3, 0.001579),
    Sketcher.Constraint("DistanceX", -1, 1, 48, 3, 0.001741),
    Sketcher.Constraint("DistanceY", -1, 1, 51, 3, 0.000248),
    Sketcher.Constraint("DistanceX", 54, 3, -1, 1, 0.001579),
    Sketcher.Constraint("DistanceY", 54, 3, -1, 1, 0.00246),
    Sketcher.Constraint("DistanceY", -1, 1, 69, 3, 0.001741),
    Sketcher.Constraint("DistanceX", 72, 3, -1, 1, 0.000248),
    Sketcher.Constraint("DistanceX", -1, 1, 75, 3, 0.00246),
    Sketcher.Constraint("DistanceY", 75, 3, -1, 1, 0.001579),
    Sketcher.Constraint("DistanceY", -1, 1, 3, 2, 13.04312),
    Sketcher.Constraint("DistanceX", -1, 1, 4, 2, 41.014741),
    Sketcher.Constraint("DistanceX", -1, 1, 6, 2, 32.27148),
    Sketcher.Constraint("DistanceX", -1, 1, 7, 2, 35.591258),
    Sketcher.Constraint("DistanceX", -1, 1, 8, 2, 27.539111),
    Sketcher.Constraint("DistanceY", -1, 1, 9, 2, 27.40528),
    Sketcher.Constraint("DistanceY", -1, 1, 10, 2, 35.591258),
    Sketcher.Constraint("DistanceY", -1, 1, 12, 2, 32.692041),
    Sketcher.Constraint("DistanceY", -1, 1, 13, 2, 41.014741),
    Sketcher.Constraint("DistanceX", -1, 1, 14, 2, 13.223271),
    Sketcher.Constraint("DistanceY", -1, 1, 14, 2, 36.01277),
    Sketcher.Constraint("DistanceX", -1, 1, 17, 2, 4.878141),
    Sketcher.Constraint("DistanceY", -1, 1, 17, 2, 38.05231),
    Sketcher.Constraint("DistanceX", -1, 1, 18, 2, 3.90239),
    Sketcher.Constraint("DistanceY", -1, 1, 18, 2, 38.16472),
    Sketcher.Constraint("DistanceX", 24, 2, -1, 1, 13.04312),
    Sketcher.Constraint("DistanceY", -1, 1, 25, 2, 41.014741),
    Sketcher.Constraint("DistanceY", -1, 1, 27, 2, 32.27148),
    Sketcher.Constraint("DistanceY", -1, 1, 28, 2, 35.591258),
    Sketcher.Constraint("DistanceY", -1, 1, 29, 2, 27.539111),
    Sketcher.Constraint("DistanceX", 30, 2, -1, 1, 27.40528),
    Sketcher.Constraint("DistanceX", 31, 2, -1, 1, 35.591258),
    Sketcher.Constraint("DistanceX", 33, 2, -1, 1, 32.692041),
    Sketcher.Constraint("DistanceX", 34, 2, -1, 1, 41.014741),
    Sketcher.Constraint("DistanceX", 35, 2, -1, 1, 36.01277),
    Sketcher.Constraint("DistanceY", -1, 1, 35, 2, 13.223271),
    Sketcher.Constraint("DistanceX", 38, 2, -1, 1, 38.05231),
    Sketcher.Constraint("DistanceY", -1, 1, 38, 2, 4.878141),
    Sketcher.Constraint("DistanceX", 39, 2, -1, 1, 38.16472),
    Sketcher.Constraint("DistanceY", -1, 1, 39, 2, 3.90239),
    Sketcher.Constraint("DistanceY", 45, 2, -1, 1, 13.04312),
    Sketcher.Constraint("DistanceX", 46, 2, -1, 1, 41.014741),
    Sketcher.Constraint("DistanceX", 48, 2, -1, 1, 32.27148),
    Sketcher.Constraint("DistanceX", 49, 2, -1, 1, 35.591258),
    Sketcher.Constraint("DistanceX", 50, 2, -1, 1, 27.539111),
    Sketcher.Constraint("DistanceY", 51, 2, -1, 1, 27.40528),
    Sketcher.Constraint("DistanceY", 52, 2, -1, 1, 35.591258),
    Sketcher.Constraint("DistanceY", 54, 2, -1, 1, 32.692041),
    Sketcher.Constraint("DistanceY", 55, 2, -1, 1, 41.014741),
    Sketcher.Constraint("DistanceX", 56, 2, -1, 1, 13.223271),
    Sketcher.Constraint("DistanceY", 56, 2, -1, 1, 36.01277),
    Sketcher.Constraint("DistanceX", 59, 2, -1, 1, 4.878141),
    Sketcher.Constraint("DistanceY", 59, 2, -1, 1, 38.05231),
    Sketcher.Constraint("DistanceX", 60, 2, -1, 1, 3.90239),
    Sketcher.Constraint("DistanceY", 60, 2, -1, 1, 38.16472),
    Sketcher.Constraint("DistanceX", -1, 1, 66, 2, 13.04312),
    Sketcher.Constraint("DistanceY", 67, 2, -1, 1, 41.014741),
    Sketcher.Constraint("DistanceY", 69, 2, -1, 1, 32.27148),
    Sketcher.Constraint("DistanceY", 70, 2, -1, 1, 35.591258),
    Sketcher.Constraint("DistanceY", 71, 2, -1, 1, 27.539111),
    Sketcher.Constraint("DistanceX", -1, 1, 72, 2, 27.40528),
    Sketcher.Constraint("DistanceX", -1, 1, 73, 2, 35.591258),
    Sketcher.Constraint("DistanceX", -1, 1, 75, 2, 32.692041),
    Sketcher.Constraint("DistanceX", -1, 1, 76, 2, 41.014741),
    Sketcher.Constraint("DistanceX", -1, 1, 77, 2, 36.01277),
    Sketcher.Constraint("DistanceY", 77, 2, -1, 1, 13.223271),
    Sketcher.Constraint("DistanceX", -1, 1, 80, 2, 38.05231),
    Sketcher.Constraint("DistanceY", 80, 2, -1, 1, 4.878141),
    Sketcher.Constraint("DistanceX", -1, 1, 81, 2, 38.16472),
    Sketcher.Constraint("DistanceY", 81, 2, -1, 1, 3.90239),
    Sketcher.Constraint("Distance", 1, 8.328978),
    Sketcher.Constraint("Distance", 2, 8.224327),
    Sketcher.Constraint("Distance", 4, 8.328977),
    Sketcher.Constraint("Distance", 5, 8.224326),
    Sketcher.Constraint("Distance", 7, 8.328978),
    Sketcher.Constraint("Distance", 8, 8.224326),
    Sketcher.Constraint("Distance", 10, 8.328977),
    Sketcher.Constraint("Distance", 13, 8.328978),
    Sketcher.Constraint("Distance", 16, 8.328977),
    Sketcher.Constraint("Distance", 17, 8.224326),
    Sketcher.Constraint("Distance", 19, 8.328978),
    Sketcher.Constraint("Distance", 20, 8.224327),
    Sketcher.Constraint("Distance", 22, 8.328978),
    Sketcher.Constraint("Distance", 23, 8.224327),
    Sketcher.Constraint("Distance", 25, 8.328977),
    Sketcher.Constraint("Distance", 26, 8.224326),
    Sketcher.Constraint("Distance", 28, 8.328978),
    Sketcher.Constraint("Distance", 29, 8.224326),
    Sketcher.Constraint("Distance", 31, 8.328977),
    Sketcher.Constraint("Distance", 34, 8.328978),
    Sketcher.Constraint("Distance", 37, 8.328977),
    Sketcher.Constraint("Distance", 38, 8.224326),
    Sketcher.Constraint("Distance", 40, 8.328978),
    Sketcher.Constraint("Distance", 41, 8.224327),
    Sketcher.Constraint("Distance", 43, 8.328978),
    Sketcher.Constraint("Distance", 44, 8.224327),
    Sketcher.Constraint("Distance", 46, 8.328977),
    Sketcher.Constraint("Distance", 47, 8.224326),
    Sketcher.Constraint("Distance", 49, 8.328978),
    Sketcher.Constraint("Distance", 50, 8.224326),
    Sketcher.Constraint("Distance", 52, 8.328977),
    Sketcher.Constraint("Distance", 55, 8.328978),
    Sketcher.Constraint("Distance", 58, 8.328977),
    Sketcher.Constraint("Distance", 59, 8.224326),
    Sketcher.Constraint("Distance", 61, 8.328978),
    Sketcher.Constraint("Distance", 62, 8.224327),
    Sketcher.Constraint("Distance", 64, 8.328978),
    Sketcher.Constraint("Distance", 65, 8.224327),
    Sketcher.Constraint("Distance", 67, 8.328977),
    Sketcher.Constraint("Distance", 68, 8.224326),
    Sketcher.Constraint("Distance", 70, 8.328978),
    Sketcher.Constraint("Distance", 71, 8.224326),
    Sketcher.Constraint("Distance", 73, 8.328977),
    Sketcher.Constraint("Distance", 76, 8.328978),
    Sketcher.Constraint("Distance", 79, 8.328977),
    Sketcher.Constraint("Distance", 80, 8.224326),
    Sketcher.Constraint("Distance", 82, 8.328978),
    Sketcher.Constraint("Distance", 83, 8.224327),
    Sketcher.Constraint("DistanceX", -1, 1, 0, 3, 0.004817),
    Sketcher.Constraint("DistanceX", -1, 1, 3, 3, 0.002415),
    Sketcher.Constraint("DistanceY", -1, 1, 3, 3, 0.000843),
    Sketcher.Constraint("DistanceX", -1, 1, 15, 3, 0.001785),
    Sketcher.Constraint("DistanceX", 21, 3, -1, 1, 0.000554),
    Sketcher.Constraint("DistanceX", 24, 3, -1, 1, 0.000843),
    Sketcher.Constraint("DistanceY", -1, 1, 24, 3, 0.002415),
    Sketcher.Constraint("DistanceX", 36, 3, -1, 1, 0.005136),
    Sketcher.Constraint("DistanceX", 42, 3, -1, 1, 0.004817),
    Sketcher.Constraint("DistanceX", 45, 3, -1, 1, 0.002415),
    Sketcher.Constraint("DistanceY", 45, 3, -1, 1, 0.000843),
    Sketcher.Constraint("DistanceX", 57, 3, -1, 1, 0.001785),
    Sketcher.Constraint("DistanceX", -1, 1, 63, 3, 0.000554),
    Sketcher.Constraint("DistanceX", -1, 1, 66, 3, 0.000843),
    Sketcher.Constraint("DistanceY", 66, 3, -1, 1, 0.002415),
    Sketcher.Constraint("DistanceX", -1, 1, 78, 3, 0.005136),
    Sketcher.Constraint("DistanceX", -1, 1, 1, 2, 44.381573),
    Sketcher.Constraint("DistanceX", -1, 1, 15, 2, 12.296998),
    Sketcher.Constraint("DistanceX", 22, 2, -1, 1, 10.129805),
    Sketcher.Constraint("DistanceX", 36, 2, -1, 1, 36.339488),
    Sketcher.Constraint("DistanceX", 43, 2, -1, 1, 44.381573),
    Sketcher.Constraint("DistanceX", 57, 2, -1, 1, 12.296998),
    Sketcher.Constraint("DistanceX", -1, 1, 64, 2, 10.129805),
    Sketcher.Constraint("DistanceX", -1, 1, 78, 2, 36.339488),
])
pad1 = body.newObject("PartDesign::Pad", "Pad")
pad1.Profile = sketch1
pad1.setExpression("Length", "Params.pad1_length")

sketch2 = body.newObject("Sketcher::SketchObject", "Sketch001")
sketch2.AttachmentSupport = (doc.getObject("XZ_Plane"), [""])
sketch2.MapMode = "FlatFace"
sketch2.AttachmentOffset = App.Placement(V(0, 0, 0.5 * 25.4), App.Rotation())
sketch2.addGeometry(Part.Circle(V(0, 0, 0), V(0, 0, 1), 3.2), False)
sketch2.addConstraint([
    Sketcher.Constraint("Coincident", 0, 3, -1, 1),
    Sketcher.Constraint("Diameter", 0, Q("0.25 in")),
])
sketch2.setExpression("Constraints[1]", "Params.sketch2_diameter")
pocket1 = body.newObject("PartDesign::Pocket", "Pocket")
pocket1.Profile = sketch2
pocket1.setExpression("Length", "Params.pocket1_length")

doc.recompute()
